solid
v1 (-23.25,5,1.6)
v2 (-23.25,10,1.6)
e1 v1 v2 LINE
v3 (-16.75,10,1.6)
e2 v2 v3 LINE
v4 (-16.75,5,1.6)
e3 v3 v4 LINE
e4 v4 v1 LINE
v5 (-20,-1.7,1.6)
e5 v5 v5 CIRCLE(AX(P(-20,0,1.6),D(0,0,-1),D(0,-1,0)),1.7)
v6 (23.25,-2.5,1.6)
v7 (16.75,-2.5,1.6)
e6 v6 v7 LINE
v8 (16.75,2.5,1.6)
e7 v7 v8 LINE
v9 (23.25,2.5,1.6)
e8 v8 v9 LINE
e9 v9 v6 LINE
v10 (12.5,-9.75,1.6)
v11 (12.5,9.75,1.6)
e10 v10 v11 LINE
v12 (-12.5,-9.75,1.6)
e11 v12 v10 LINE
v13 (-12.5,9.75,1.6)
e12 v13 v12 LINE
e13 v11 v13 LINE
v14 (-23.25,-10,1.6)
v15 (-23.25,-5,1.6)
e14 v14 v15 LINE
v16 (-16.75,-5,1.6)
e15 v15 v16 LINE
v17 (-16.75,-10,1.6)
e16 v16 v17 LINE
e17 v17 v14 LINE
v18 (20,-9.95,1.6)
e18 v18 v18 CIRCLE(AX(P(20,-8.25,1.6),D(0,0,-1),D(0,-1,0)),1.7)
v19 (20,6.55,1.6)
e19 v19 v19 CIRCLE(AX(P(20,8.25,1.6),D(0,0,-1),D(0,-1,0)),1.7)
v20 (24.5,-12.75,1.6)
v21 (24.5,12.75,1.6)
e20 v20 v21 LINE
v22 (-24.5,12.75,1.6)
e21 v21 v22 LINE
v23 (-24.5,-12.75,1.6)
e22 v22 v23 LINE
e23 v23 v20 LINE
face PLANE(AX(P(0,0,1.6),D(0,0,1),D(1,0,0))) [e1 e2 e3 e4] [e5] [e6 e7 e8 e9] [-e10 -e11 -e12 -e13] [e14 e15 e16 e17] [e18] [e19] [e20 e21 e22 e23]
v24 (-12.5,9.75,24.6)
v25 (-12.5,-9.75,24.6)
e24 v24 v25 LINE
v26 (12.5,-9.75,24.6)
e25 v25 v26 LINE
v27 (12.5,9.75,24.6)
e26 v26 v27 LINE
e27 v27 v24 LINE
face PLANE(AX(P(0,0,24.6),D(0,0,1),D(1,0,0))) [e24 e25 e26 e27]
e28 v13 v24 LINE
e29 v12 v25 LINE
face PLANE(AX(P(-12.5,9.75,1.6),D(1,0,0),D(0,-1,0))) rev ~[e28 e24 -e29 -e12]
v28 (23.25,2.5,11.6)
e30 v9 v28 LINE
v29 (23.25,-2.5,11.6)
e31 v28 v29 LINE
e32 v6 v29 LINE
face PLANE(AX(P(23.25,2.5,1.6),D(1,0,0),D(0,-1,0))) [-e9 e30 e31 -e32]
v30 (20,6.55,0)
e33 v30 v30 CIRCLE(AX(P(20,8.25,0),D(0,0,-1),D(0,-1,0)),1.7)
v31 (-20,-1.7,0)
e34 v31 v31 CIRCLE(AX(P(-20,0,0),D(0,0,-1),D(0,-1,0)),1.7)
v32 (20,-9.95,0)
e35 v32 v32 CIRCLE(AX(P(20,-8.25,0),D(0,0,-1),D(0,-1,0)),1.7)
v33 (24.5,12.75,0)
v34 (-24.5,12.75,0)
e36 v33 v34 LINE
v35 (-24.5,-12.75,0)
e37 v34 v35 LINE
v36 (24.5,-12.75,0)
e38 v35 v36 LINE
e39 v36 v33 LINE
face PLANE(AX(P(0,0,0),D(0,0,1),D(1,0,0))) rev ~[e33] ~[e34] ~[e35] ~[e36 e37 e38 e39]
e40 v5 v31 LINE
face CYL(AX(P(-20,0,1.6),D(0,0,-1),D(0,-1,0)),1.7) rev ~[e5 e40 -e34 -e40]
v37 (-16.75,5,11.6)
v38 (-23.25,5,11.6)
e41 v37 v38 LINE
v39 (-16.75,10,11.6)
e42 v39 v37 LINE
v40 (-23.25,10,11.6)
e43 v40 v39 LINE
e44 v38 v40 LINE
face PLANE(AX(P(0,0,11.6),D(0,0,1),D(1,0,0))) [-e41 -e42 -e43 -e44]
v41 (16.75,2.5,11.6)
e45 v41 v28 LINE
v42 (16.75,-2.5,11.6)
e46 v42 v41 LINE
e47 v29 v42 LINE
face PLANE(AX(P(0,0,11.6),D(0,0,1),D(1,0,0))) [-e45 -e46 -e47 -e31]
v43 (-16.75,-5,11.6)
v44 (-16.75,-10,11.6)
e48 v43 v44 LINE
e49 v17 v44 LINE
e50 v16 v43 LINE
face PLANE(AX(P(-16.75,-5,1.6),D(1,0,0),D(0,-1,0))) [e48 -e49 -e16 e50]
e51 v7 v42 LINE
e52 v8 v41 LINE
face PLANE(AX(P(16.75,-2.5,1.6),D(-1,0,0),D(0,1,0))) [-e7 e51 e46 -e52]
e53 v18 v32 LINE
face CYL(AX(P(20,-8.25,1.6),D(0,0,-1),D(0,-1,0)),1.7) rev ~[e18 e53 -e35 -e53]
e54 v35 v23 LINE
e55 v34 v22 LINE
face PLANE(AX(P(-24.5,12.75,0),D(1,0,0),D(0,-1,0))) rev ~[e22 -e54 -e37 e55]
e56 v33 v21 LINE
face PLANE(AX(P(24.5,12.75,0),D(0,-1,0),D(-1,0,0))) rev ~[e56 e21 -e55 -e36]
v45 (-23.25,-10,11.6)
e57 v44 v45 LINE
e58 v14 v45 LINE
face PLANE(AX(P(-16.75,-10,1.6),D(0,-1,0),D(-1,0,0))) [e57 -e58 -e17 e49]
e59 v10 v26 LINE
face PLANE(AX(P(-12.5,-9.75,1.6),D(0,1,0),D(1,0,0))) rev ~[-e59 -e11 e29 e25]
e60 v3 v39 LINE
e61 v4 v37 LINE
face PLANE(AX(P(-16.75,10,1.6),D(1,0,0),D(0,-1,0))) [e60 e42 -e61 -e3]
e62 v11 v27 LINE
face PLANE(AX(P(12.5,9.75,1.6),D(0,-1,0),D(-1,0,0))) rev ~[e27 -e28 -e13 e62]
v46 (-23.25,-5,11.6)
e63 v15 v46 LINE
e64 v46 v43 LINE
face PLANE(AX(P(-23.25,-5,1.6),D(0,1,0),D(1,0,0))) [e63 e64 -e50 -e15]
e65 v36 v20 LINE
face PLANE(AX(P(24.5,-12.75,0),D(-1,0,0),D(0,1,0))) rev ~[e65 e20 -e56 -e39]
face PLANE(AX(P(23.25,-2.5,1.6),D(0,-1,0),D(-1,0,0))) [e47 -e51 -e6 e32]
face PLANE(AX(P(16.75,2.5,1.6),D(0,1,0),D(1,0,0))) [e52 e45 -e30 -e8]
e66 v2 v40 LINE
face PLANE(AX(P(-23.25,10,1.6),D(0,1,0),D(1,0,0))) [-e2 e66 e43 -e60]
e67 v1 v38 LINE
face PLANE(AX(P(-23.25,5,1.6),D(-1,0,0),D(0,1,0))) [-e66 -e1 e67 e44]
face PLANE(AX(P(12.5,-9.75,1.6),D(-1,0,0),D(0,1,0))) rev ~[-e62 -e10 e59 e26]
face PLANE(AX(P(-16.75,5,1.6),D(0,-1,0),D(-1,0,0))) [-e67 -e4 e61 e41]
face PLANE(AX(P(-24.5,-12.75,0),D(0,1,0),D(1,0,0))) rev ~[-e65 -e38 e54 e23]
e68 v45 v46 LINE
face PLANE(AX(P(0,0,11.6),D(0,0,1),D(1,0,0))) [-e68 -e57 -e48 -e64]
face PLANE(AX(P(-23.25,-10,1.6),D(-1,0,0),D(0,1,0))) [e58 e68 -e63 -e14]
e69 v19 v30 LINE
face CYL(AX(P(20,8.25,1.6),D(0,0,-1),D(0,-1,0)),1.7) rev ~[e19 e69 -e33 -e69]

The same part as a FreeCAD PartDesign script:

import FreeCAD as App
import Part
import Sketcher

V = App.Vector
Q = App.Units.Quantity

doc = App.newDocument("Part")
params = doc.addObject("Spreadsheet::Sheet", "Params")
for row, (alias, value) in enumerate([
    ("sketch1_width", "49 mm"),
    ("sketch1_height", "25.5 mm"),
    ("pad1_length", "1.6 mm"),
    ("sketch2_width", "25 mm"),
    ("sketch2_height", "19.5 mm"),
    ("pad2_length", "23 mm"),
    ("sketch3_height", "5 mm"),
    ("sketch3_width", "6.5 mm"),
    ("pad3_length", "10 mm"),
    ("sketch4_diameter", "3.4 mm"),
    ("hole_diameter", "3.4 mm"),
    ("hole_depth", "8 mm"),
], start=1):
    params.set(f"A{row}", alias)
    params.set(f"B{row}", "=" + value)
    params.setAlias(f"B{row}", alias)

body = doc.addObject("PartDesign::Body", "Body")

# Sketch on XY plane
sketch1 = body.newObject("Sketcher::SketchObject", "Sketch")
sketch1.AttachmentSupport = (doc.getObject("XY_Plane"), [""])
sketch1.MapMode = "FlatFace"
sketch1.addGeometry([
    Part.LineSegment(V(-24, 13, 0), V(-24, -13, 0)),
    Part.LineSegment(V(-24, -13, 0), V(24, -13, 0)),
    Part.LineSegment(V(24, -13, 0), V(24, 13, 0)),
    Part.LineSegment(V(24, 13, 0), V(-24, 13, 0)),
], False)
sketch1.addConstraint([
    Sketcher.Constraint("Coincident", 0, 2, 1, 1),
    Sketcher.Constraint("Coincident", 1, 2, 2, 1),
    Sketcher.Constraint("Coincident", 2, 2, 3, 1),
    Sketcher.Constraint("Coincident", 3, 2, 0, 1),
    Sketcher.Constraint("Vertical", 0),
    Sketcher.Constraint("Horizontal", 1),
    Sketcher.Constraint("Vertical", 2),
    Sketcher.Constraint("Horizontal", 3),
    Sketcher.Constraint("Symmetric", 0, 2, 2, 2, -1, 1),
    Sketcher.Constraint("DistanceX", 1, 1, 1, 2, Q("49 mm")),
    Sketcher.Constraint("DistanceY", 0, 2, 0, 1, Q("25.5 mm")),
])
sketch1.setExpression("Constraints[9]", "Params.sketch1_width")
sketch1.setExpression("Constraints[10]", "Params.sketch1_height")
pad1 = body.newObject("PartDesign::Pad", "Pad")
pad1.Profile = sketch1
pad1.setExpression("Length", "Params.pad1_length")

# Sketch on XY plane
sketch2 = body.newObject("Sketcher::SketchObject", "Sketch001")
sketch2.AttachmentSupport = (doc.getObject("XY_Plane"), [""])
sketch2.MapMode = "FlatFace"
sketch2.AttachmentOffset = App.Placement(V(0, 0, 1.6), App.Rotation())
sketch2.addGeometry([
    Part.LineSegment(V(-12, 10, 0), V(-12, -10, 0)),
    Part.LineSegment(V(-12, -10, 0), V(12, -10, 0)),
    Part.LineSegment(V(12, -10, 0), V(12, 10, 0)),
    Part.LineSegment(V(12, 10, 0), V(-12, 10, 0)),
], False)
sketch2.addConstraint([
    Sketcher.Constraint("Coincident", 0, 2, 1, 1),
    Sketcher.Constraint("Coincident", 1, 2, 2, 1),
    Sketcher.Constraint("Coincident", 2, 2, 3, 1),
    Sketcher.Constraint("Coincident", 3, 2, 0, 1),
    Sketcher.Constraint("Vertical", 0),
    Sketcher.Constraint("Horizontal", 1),
    Sketcher.Constraint("Vertical", 2),
    Sketcher.Constraint("Horizontal", 3),
    Sketcher.Constraint("Symmetric", 0, 2, 2, 2, -1, 1),
    Sketcher.Constraint("DistanceX", 1, 1, 1, 2, Q("25 mm")),
    Sketcher.Constraint("DistanceY", 0, 2, 0, 1, Q("19.5 mm")),
])
sketch2.setExpression("Constraints[9]", "Params.sketch2_width")
sketch2.setExpression("Constraints[10]", "Params.sketch2_height")
pad2 = body.newObject("PartDesign::Pad", "Pad001")
pad2.Profile = sketch2
pad2.setExpression("Length", "Params.pad2_length")

# Sketch on XY plane
sketch3 = body.newObject("Sketcher::SketchObject", "Sketch002")
sketch3.AttachmentSupport = (doc.getObject("XY_Plane"), [""])
sketch3.MapMode = "FlatFace"
sketch3.AttachmentOffset = App.Placement(V(0, 0, 1.6), App.Rotation())
sketch3.addGeometry([
    Part.LineSegment(V(23, 2, 0), V(17, 2, 0)),  # 0
    Part.LineSegment(V(17, 2, 0), V(17, -2, 0)),  # 1
    Part.LineSegment(V(17, -2, 0), V(23, -2, 0)),  # 2
    Part.LineSegment(V(23, -2, 0), V(23, 2, 0)),  # 3
    Part.LineSegment(V(-17, 10, 0), V(-23, 10, 0)),  # 4
    Part.LineSegment(V(-23, 10, 0), V(-23, 5, 0)),  # 5
    Part.LineSegment(V(-23, 5, 0), V(-17, 5, 0)),  # 6
    Part.LineSegment(V(-17, 5, 0), V(-17, 10, 0)),  # 7
    Part.LineSegment(V(-17, -5, 0), V(-23, -5, 0)),  # 8
    Part.LineSegment(V(-23, -5, 0), V(-23, -10, 0)),  # 9
    Part.LineSegment(V(-23, -10, 0), V(-17, -10, 0)),  # 10
    Part.LineSegment(V(-17, -10, 0), V(-17, -5, 0)),  # 11
], False)
sketch3.addConstraint([
    Sketcher.Constraint("Coincident", 0, 2, 1, 1),
    Sketcher.Constraint("Coincident", 1, 2, 2, 1),
    Sketcher.Constraint("Coincident", 2, 2, 3, 1),
    Sketcher.Constraint("Coincident", 3, 2, 0, 1),
    Sketcher.Constraint("Coincident", 4, 2, 5, 1),
    Sketcher.Constraint("Coincident", 5, 2, 6, 1),
    Sketcher.Constraint("Coincident", 6, 2, 7, 1),
    Sketcher.Constraint("Coincident", 7, 2, 4, 1),
    Sketcher.Constraint("Coincident", 8, 2, 9, 1),
    Sketcher.Constraint("Coincident", 9, 2, 10, 1),
    Sketcher.Constraint("Coincident", 10, 2, 11, 1),
    Sketcher.Constraint("Coincident", 11, 2, 8, 1),
    Sketcher.Constraint("Horizontal", 0),
    Sketcher.Constraint("Vertical", 1),
    Sketcher.Constraint("Horizontal", 2),
    Sketcher.Constraint("Vertical", 3),
    Sketcher.Constraint("Horizontal", 4),
    Sketcher.Constraint("Vertical", 5),
    Sketcher.Constraint("Horizontal", 6),
    Sketcher.Constraint("Vertical", 7),
    Sketcher.Constraint("Horizontal", 8),
    Sketcher.Constraint("Vertical", 9),
    Sketcher.Constraint("Horizontal", 10),
    Sketcher.Constraint("Vertical", 11),
    Sketcher.Constraint("Symmetric", 5, 2, 8, 2, -1),
    Sketcher.Constraint("Symmetric", 7, 2, 10, 2, -1),
    Sketcher.Constraint("Equal", 2, 4),
    Sketcher.Constraint("Equal", 3, 5),
    Sketcher.Constraint("DistanceY", 1, 2, 1, 1, Q("5 mm")),
    Sketcher.Constraint("DistanceX", 0, 2, 0, 1, Q("6.5 mm")),
    Sketcher.Constraint("DistanceY", -1, 1, 4, 2, Q("10 mm")),
    Sketcher.Constraint("DistanceX", 6, 2, 0, 2, Q("33.5 mm")),
    Sketcher.Constraint("DistanceY", -1, 1, 0, 2, Q("2.5 mm")),
    Sketcher.Constraint("DistanceX", -1, 1, 0, 2, Q("16.75 mm")),
])
sketch3.setExpression("Constraints[28]", "Params.sketch3_height")
sketch3.setExpression("Constraints[29]", "Params.sketch3_width")
pad3 = body.newObject("PartDesign::Pad", "Pad002")
pad3.Profile = sketch3
pad3.setExpression("Length", "Params.pad3_length")

# Sketch on XY plane
sketch4 = body.newObject("Sketcher::SketchObject", "Sketch003")
sketch4.AttachmentSupport = (doc.getObject("XY_Plane"), [""])
sketch4.MapMode = "FlatFace"
sketch4.AttachmentOffset = App.Placement(V(0, 0, 1.6), App.Rotation())
sketch4.addGeometry([
    Part.Circle(V(-20, 0, 0), V(0, 0, 1), 1.7),
    Part.Circle(V(20, 8.2, 0), V(0, 0, 1), 1.7),
    Part.Circle(V(20, -8.2, 0), V(0, 0, 1), 1.7),
], False)
sketch4.addConstraint([
    Sketcher.Constraint("Equal", 0, 1),
    Sketcher.Constraint("Equal", 1, 2),
    Sketcher.Constraint("Symmetric", 1, 3, 2, 3, -1),
    Sketcher.Constraint("PointOnObject", 0, 3, -1),
    Sketcher.Constraint("Diameter", 0, Q("3.4 mm")),
    Sketcher.Constraint("DistanceX", 0, 3, -1, 1, Q("20 mm")),
    Sketcher.Constraint("DistanceX", -1, 1, 1, 3, Q("20 mm")),
    Sketcher.Constraint("DistanceY", 2, 3, 1, 3, Q("16.5 mm")),
])
sketch4.setExpression("Constraints[4]", "Params.sketch4_diameter")
doc.recompute()
hole = body.newObject("PartDesign::Hole", "Hole")
hole.Profile = sketch4
hole.ThreadType = "None"
hole.setExpression("Diameter", "Params.hole_diameter")
hole.DepthType = "Dimension"
hole.setExpression("Depth", "Params.hole_depth")
hole.DrillPoint = "Angled"
hole.DrillPointAngle = 118

doc.recompute()
